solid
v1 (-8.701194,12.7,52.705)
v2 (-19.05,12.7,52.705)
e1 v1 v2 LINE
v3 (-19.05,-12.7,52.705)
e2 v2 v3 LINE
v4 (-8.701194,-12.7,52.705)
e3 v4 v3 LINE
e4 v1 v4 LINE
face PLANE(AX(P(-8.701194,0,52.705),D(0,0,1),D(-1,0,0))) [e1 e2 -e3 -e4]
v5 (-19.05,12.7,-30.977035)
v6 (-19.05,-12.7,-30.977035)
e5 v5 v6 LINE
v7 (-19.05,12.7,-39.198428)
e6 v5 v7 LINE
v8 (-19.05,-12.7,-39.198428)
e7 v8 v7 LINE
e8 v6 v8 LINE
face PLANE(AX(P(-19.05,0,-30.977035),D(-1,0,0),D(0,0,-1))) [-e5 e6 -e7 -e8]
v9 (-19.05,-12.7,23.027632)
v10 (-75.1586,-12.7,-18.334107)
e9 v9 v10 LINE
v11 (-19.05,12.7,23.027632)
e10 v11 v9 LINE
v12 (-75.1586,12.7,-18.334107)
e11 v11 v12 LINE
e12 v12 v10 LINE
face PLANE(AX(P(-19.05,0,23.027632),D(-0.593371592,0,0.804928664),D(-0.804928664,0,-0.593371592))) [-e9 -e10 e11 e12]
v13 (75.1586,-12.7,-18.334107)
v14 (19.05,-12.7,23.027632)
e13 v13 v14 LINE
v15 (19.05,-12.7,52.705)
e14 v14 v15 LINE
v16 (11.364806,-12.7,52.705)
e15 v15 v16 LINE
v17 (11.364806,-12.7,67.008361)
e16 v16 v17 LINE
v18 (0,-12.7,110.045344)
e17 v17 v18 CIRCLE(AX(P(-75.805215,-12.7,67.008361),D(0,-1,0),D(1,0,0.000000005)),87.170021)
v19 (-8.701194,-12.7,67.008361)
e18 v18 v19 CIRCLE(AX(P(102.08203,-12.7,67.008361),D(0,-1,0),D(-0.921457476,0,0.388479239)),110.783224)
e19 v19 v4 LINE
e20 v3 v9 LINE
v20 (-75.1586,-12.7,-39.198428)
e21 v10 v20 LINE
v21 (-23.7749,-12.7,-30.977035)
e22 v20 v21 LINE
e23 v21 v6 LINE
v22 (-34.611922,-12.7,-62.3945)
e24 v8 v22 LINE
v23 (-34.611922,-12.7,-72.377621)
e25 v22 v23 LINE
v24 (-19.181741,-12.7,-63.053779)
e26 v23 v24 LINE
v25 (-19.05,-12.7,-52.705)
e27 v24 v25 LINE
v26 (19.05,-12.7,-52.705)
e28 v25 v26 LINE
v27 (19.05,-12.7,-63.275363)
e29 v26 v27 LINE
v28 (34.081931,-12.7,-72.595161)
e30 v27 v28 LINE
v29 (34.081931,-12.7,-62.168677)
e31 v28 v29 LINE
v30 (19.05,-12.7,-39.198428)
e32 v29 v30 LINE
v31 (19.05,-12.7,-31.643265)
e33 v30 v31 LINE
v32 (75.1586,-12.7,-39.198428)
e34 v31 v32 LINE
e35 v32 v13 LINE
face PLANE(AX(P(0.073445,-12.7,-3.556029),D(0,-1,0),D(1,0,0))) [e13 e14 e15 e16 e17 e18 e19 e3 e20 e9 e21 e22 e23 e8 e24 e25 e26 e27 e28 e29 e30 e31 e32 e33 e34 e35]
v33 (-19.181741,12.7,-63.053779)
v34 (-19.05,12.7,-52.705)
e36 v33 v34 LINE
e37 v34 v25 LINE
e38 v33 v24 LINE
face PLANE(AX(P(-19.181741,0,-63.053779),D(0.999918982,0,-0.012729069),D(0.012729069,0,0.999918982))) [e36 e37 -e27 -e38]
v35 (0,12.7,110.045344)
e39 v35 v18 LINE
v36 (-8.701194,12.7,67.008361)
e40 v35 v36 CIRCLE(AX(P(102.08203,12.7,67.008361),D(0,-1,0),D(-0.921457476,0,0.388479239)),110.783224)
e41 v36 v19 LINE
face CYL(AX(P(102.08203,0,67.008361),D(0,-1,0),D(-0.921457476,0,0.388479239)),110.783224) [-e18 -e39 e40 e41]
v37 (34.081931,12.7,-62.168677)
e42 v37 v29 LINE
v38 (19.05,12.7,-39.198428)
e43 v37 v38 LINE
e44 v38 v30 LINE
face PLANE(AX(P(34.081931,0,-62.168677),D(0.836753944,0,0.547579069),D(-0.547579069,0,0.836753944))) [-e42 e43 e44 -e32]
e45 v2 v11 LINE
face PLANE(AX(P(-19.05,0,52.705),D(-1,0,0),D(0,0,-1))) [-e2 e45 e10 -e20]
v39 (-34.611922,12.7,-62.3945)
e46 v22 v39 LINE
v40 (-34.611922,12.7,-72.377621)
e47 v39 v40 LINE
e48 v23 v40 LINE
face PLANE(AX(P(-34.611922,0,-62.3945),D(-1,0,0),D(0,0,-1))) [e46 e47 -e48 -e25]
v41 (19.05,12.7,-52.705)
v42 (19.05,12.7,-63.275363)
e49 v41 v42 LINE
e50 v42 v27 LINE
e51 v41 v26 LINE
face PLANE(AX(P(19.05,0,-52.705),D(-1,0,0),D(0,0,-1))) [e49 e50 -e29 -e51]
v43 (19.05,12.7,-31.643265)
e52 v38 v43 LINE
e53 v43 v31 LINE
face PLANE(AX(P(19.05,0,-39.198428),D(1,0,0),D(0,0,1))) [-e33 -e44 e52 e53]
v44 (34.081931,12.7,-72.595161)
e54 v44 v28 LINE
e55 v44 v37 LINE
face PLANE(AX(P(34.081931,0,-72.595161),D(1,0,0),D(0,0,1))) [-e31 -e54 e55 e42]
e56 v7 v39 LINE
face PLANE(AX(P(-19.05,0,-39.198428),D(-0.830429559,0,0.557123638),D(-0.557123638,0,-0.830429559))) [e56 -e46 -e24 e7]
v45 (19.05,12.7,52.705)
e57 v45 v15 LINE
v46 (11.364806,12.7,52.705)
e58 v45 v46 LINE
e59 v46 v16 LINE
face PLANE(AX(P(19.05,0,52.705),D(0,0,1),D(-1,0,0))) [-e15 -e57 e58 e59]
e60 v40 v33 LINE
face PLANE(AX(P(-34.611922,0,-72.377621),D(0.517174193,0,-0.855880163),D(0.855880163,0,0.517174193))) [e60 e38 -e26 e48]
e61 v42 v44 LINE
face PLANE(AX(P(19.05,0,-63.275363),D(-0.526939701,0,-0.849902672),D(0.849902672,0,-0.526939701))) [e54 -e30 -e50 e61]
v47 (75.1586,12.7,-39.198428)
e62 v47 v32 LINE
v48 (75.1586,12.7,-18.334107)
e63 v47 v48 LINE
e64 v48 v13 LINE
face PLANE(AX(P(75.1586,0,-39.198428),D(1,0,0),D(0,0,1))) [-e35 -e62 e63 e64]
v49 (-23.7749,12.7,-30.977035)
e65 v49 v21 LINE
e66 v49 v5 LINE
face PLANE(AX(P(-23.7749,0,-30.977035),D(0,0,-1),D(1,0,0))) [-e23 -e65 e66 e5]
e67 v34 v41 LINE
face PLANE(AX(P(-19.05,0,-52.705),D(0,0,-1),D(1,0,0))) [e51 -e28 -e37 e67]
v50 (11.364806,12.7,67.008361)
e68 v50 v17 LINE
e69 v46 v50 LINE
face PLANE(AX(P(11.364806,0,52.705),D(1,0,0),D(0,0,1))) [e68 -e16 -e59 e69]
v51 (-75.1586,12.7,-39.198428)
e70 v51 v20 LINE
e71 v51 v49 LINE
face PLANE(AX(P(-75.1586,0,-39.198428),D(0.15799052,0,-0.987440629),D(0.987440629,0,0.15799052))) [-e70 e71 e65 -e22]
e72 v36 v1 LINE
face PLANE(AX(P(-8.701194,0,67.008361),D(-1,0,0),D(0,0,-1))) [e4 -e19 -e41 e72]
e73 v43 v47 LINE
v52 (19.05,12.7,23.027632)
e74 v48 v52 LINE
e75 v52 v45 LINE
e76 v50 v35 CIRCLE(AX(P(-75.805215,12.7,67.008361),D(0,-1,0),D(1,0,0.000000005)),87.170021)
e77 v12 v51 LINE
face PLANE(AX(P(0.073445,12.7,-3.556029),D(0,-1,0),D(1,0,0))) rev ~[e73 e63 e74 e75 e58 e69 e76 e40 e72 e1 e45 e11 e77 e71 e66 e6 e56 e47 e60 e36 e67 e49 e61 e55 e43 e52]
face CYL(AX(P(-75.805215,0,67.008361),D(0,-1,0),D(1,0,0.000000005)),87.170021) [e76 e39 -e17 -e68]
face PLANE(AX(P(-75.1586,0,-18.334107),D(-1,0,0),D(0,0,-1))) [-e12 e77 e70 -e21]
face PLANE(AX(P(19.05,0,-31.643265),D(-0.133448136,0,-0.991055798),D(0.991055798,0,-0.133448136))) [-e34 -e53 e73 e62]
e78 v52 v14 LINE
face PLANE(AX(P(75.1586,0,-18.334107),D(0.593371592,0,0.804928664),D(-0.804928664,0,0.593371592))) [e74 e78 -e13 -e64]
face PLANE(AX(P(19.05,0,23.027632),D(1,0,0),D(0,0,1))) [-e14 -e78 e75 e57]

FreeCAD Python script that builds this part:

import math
import FreeCAD as App
import Part
import Sketcher

V = App.Vector
Q = App.Units.Quantity

doc = App.newDocument("Part")
body = doc.addObject("PartDesign::Body", "Body")

# Sketch on XZ plane
sketch1 = body.newObject("Sketcher::SketchObject", "Sketch")
sketch1.AttachmentSupport = (doc.getObject("XZ_Plane"), [""])
sketch1.MapMode = "FlatFace"
sketch1.addGeometry([
    Part.LineSegment(V(-34.6, -72.4, 0), V(-19.2, -63.1, 0)),  # 0
    Part.LineSegment(V(-19.2, -63.1, 0), V(-19.1, -52.7, 0)),  # 1
    Part.LineSegment(V(-19.1, -52.7, 0), V(19.1, -52.7, 0)),  # 2
    Part.LineSegment(V(19.1, -52.7, 0), V(19.1, -63.3, 0)),  # 3
    Part.LineSegment(V(19.1, -63.3, 0), V(34.1, -72.6, 0)),  # 4
    Part.LineSegment(V(34.1, -72.6, 0), V(34.1, -62.2, 0)),  # 5
    Part.LineSegment(V(34.1, -62.2, 0), V(19.1, -39.2, 0)),  # 6
    Part.LineSegment(V(19.1, -39.2, 0), V(19.1, -31.6, 0)),  # 7
    Part.LineSegment(V(19.1, -31.6, 0), V(75.2, -39.2, 0)),  # 8
    Part.LineSegment(V(75.2, -39.2, 0), V(75.2, -18.3, 0)),  # 9
    Part.LineSegment(V(75.2, -18.3, 0), V(19.1, 23, 0)),  # 10
    Part.LineSegment(V(19.1, 23, 0), V(19.1, 52.7, 0)),  # 11
    Part.LineSegment(V(19.1, 52.7, 0), V(11.4, 52.7, 0)),  # 12
    Part.LineSegment(V(11.4, 52.7, 0), V(11.4, 67, 0)),  # 13
    Part.ArcOfCircle(Part.Circle(V(-75.8, 67, 0), V(0, 0, 1), 87.2), math.radians(0), math.radians(30)),  # 14
    Part.ArcOfCircle(Part.Circle(V(102.1, 67, 0), V(0, 0, 1), 110.8), math.radians(157), math.radians(180)),  # 15
    Part.LineSegment(V(-8.7, 67, 0), V(-8.7, 52.7, 0)),  # 16
    Part.LineSegment(V(-8.7, 52.7, 0), V(-19.1, 52.7, 0)),  # 17
    Part.LineSegment(V(-19.1, 52.7, 0), V(-19.1, 23, 0)),  # 18
    Part.LineSegment(V(-19.1, 23, 0), V(-75.2, -18.3, 0)),  # 19
    Part.LineSegment(V(-75.2, -18.3, 0), V(-75.2, -39.2, 0)),  # 20
    Part.LineSegment(V(-75.2, -39.2, 0), V(-23.8, -31, 0)),  # 21
    Part.LineSegment(V(-23.8, -31, 0), V(-19.1, -31, 0)),  # 22
    Part.LineSegment(V(-19.1, -31, 0), V(-19.1, -39.2, 0)),  # 23
    Part.LineSegment(V(-19.1, -39.2, 0), V(-34.6, -62.4, 0)),  # 24
    Part.LineSegment(V(-34.6, -62.4, 0), V(-34.6, -72.4, 0)),  # 25
], False)
sketch1.addConstraint([
    Sketcher.Constraint("Coincident", 0, 2, 1, 1),
    Sketcher.Constraint("Coincident", 1, 2, 2, 1),
    Sketcher.Constraint("Coincident", 2, 2, 3, 1),
    Sketcher.Constraint("Coincident", 3, 2, 4, 1),
    Sketcher.Constraint("Coincident", 4, 2, 5, 1),
    Sketcher.Constraint("Coincident", 5, 2, 6, 1),
    Sketcher.Constraint("Coincident", 6, 2, 7, 1),
    Sketcher.Constraint("Coincident", 7, 2, 8, 1),
    Sketcher.Constraint("Coincident", 8, 2, 9, 1),
    Sketcher.Constraint("Coincident", 9, 2, 10, 1),
    Sketcher.Constraint("Coincident", 10, 2, 11, 1),
    Sketcher.Constraint("Coincident", 11, 2, 12, 1),
    Sketcher.Constraint("Coincident", 12, 2, 13, 1),
    Sketcher.Constraint("Tangent", 13, 2, 14, 1),
    Sketcher.Constraint("Coincident", 14, 2, 15, 1),
    Sketcher.Constraint("Tangent", 15, 2, 16, 1),
    Sketcher.Constraint("Coincident", 16, 2, 17, 1),
    Sketcher.Constraint("Coincident", 17, 2, 18, 1),
    Sketcher.Constraint("Coincident", 18, 2, 19, 1),
    Sketcher.Constraint("Coincident", 19, 2, 20, 1),
    Sketcher.Constraint("Coincident", 20, 2, 21, 1),
    Sketcher.Constraint("Coincident", 21, 2, 22, 1),
    Sketcher.Constraint("Coincident", 22, 2, 23, 1),
    Sketcher.Constraint("Coincident", 23, 2, 24, 1),
    Sketcher.Constraint("Coincident", 24, 2, 25, 1),
    Sketcher.Constraint("Coincident", 25, 2, 0, 1),
    Sketcher.Constraint("Horizontal", 2),
    Sketcher.Constraint("Vertical", 3),
    Sketcher.Constraint("Vertical", 5),
    Sketcher.Constraint("Vertical", 7),
    Sketcher.Constraint("Vertical", 9),
    Sketcher.Constraint("Vertical", 11),
    Sketcher.Constraint("Horizontal", 12),
    Sketcher.Constraint("Vertical", 13),
    Sketcher.Constraint("Vertical", 16),
    Sketcher.Constraint("Horizontal", 17),
    Sketcher.Constraint("Vertical", 18),
    Sketcher.Constraint("Vertical", 20),
    Sketcher.Constraint("Horizontal", 22),
    Sketcher.Constraint("Vertical", 23),
    Sketcher.Constraint("Vertical", 25),
    Sketcher.Constraint("Symmetric", 1, 2, 11, 2, -1, 1),
    Sketcher.Constraint("Symmetric", 2, 2, 17, 2, -1, 1),
    Sketcher.Constraint("Symmetric", 10, 2, 18, 2, -2),
    Sketcher.Constraint("Symmetric", 9, 2, 19, 2, -2),
    Sketcher.Constraint("Symmetric", 6, 2, 23, 2, -2),
    Sketcher.Constraint("PointOnObject", 14, 2, -2),
    Sketcher.Constraint("Horizontal", 14, 3, 15, 3),
    Sketcher.Constraint("Horizontal", 6, 2, 8, 2),
    Sketcher.Constraint("Horizontal", 8, 2, 20, 2),
    Sketcher.Constraint("Vertical", 3, 2, 6, 2),
    Sketcher.Constraint("DistanceX", 2, 1, 2, 2, Q("1.5 in")),
    Sketcher.Constraint("DistanceX", 15, 2, 13, 2, Q("0.79 in")),
    Sketcher.Constraint("DistanceY", 1, 2, -1, 1, Q("2.075 in")),
    Sketcher.Constraint("DistanceX", -1, 1, 8, 2, Q("2.959 in")),
    Sketcher.Constraint("Radius", 14, 87.170021),
    Sketcher.Constraint("DistanceX", 22, 1, 22, 2, 4.7249),
    Sketcher.Constraint("Radius", 15, 110.783224),
    Sketcher.Constraint("Distance", 10, 69.706301),
    Sketcher.Constraint("DistanceY", 9, 1, 9, 2, 20.864321),
    Sketcher.Constraint("DistanceY", 13, 1, 13, 2, 14.303361),
    Sketcher.Constraint("DistanceY", 25, 2, 25, 1, 9.983121),
    Sketcher.Constraint("DistanceY", 24, 2, -1, 1, 62.3945),
    Sketcher.Constraint("DistanceY", 4, 2, 3, 2, 9.319798),
    Sketcher.Constraint("DistanceX", 4, 2, 15, 3, 68.000099),
    Sketcher.Constraint("DistanceY", 0, 2, 5, 2, 0.885102),
    Sketcher.Constraint("Distance", 24, 27.932618),
    Sketcher.Constraint("DistanceY", 3, 2, 3, 1, 10.570363),
    Sketcher.Constraint("DistanceY", 5, 1, 5, 2, 10.426484),
    Sketcher.Constraint("DistanceY", 7, 1, 7, 2, 7.555163),
    Sketcher.Constraint("DistanceY", 11, 1, 11, 2, 29.677368),
    Sketcher.Constraint("DistanceY", 23, 2, 23, 1, 8.221393),
    Sketcher.Constraint("DistanceX", 0, 2, -1, 1, 19.181741),
])
pad1 = body.newObject("PartDesign::Pad", "Pad")
pad1.Profile = sketch1
pad1.Length = Q("1 in")
pad1.Midplane = True

doc.recompute()
